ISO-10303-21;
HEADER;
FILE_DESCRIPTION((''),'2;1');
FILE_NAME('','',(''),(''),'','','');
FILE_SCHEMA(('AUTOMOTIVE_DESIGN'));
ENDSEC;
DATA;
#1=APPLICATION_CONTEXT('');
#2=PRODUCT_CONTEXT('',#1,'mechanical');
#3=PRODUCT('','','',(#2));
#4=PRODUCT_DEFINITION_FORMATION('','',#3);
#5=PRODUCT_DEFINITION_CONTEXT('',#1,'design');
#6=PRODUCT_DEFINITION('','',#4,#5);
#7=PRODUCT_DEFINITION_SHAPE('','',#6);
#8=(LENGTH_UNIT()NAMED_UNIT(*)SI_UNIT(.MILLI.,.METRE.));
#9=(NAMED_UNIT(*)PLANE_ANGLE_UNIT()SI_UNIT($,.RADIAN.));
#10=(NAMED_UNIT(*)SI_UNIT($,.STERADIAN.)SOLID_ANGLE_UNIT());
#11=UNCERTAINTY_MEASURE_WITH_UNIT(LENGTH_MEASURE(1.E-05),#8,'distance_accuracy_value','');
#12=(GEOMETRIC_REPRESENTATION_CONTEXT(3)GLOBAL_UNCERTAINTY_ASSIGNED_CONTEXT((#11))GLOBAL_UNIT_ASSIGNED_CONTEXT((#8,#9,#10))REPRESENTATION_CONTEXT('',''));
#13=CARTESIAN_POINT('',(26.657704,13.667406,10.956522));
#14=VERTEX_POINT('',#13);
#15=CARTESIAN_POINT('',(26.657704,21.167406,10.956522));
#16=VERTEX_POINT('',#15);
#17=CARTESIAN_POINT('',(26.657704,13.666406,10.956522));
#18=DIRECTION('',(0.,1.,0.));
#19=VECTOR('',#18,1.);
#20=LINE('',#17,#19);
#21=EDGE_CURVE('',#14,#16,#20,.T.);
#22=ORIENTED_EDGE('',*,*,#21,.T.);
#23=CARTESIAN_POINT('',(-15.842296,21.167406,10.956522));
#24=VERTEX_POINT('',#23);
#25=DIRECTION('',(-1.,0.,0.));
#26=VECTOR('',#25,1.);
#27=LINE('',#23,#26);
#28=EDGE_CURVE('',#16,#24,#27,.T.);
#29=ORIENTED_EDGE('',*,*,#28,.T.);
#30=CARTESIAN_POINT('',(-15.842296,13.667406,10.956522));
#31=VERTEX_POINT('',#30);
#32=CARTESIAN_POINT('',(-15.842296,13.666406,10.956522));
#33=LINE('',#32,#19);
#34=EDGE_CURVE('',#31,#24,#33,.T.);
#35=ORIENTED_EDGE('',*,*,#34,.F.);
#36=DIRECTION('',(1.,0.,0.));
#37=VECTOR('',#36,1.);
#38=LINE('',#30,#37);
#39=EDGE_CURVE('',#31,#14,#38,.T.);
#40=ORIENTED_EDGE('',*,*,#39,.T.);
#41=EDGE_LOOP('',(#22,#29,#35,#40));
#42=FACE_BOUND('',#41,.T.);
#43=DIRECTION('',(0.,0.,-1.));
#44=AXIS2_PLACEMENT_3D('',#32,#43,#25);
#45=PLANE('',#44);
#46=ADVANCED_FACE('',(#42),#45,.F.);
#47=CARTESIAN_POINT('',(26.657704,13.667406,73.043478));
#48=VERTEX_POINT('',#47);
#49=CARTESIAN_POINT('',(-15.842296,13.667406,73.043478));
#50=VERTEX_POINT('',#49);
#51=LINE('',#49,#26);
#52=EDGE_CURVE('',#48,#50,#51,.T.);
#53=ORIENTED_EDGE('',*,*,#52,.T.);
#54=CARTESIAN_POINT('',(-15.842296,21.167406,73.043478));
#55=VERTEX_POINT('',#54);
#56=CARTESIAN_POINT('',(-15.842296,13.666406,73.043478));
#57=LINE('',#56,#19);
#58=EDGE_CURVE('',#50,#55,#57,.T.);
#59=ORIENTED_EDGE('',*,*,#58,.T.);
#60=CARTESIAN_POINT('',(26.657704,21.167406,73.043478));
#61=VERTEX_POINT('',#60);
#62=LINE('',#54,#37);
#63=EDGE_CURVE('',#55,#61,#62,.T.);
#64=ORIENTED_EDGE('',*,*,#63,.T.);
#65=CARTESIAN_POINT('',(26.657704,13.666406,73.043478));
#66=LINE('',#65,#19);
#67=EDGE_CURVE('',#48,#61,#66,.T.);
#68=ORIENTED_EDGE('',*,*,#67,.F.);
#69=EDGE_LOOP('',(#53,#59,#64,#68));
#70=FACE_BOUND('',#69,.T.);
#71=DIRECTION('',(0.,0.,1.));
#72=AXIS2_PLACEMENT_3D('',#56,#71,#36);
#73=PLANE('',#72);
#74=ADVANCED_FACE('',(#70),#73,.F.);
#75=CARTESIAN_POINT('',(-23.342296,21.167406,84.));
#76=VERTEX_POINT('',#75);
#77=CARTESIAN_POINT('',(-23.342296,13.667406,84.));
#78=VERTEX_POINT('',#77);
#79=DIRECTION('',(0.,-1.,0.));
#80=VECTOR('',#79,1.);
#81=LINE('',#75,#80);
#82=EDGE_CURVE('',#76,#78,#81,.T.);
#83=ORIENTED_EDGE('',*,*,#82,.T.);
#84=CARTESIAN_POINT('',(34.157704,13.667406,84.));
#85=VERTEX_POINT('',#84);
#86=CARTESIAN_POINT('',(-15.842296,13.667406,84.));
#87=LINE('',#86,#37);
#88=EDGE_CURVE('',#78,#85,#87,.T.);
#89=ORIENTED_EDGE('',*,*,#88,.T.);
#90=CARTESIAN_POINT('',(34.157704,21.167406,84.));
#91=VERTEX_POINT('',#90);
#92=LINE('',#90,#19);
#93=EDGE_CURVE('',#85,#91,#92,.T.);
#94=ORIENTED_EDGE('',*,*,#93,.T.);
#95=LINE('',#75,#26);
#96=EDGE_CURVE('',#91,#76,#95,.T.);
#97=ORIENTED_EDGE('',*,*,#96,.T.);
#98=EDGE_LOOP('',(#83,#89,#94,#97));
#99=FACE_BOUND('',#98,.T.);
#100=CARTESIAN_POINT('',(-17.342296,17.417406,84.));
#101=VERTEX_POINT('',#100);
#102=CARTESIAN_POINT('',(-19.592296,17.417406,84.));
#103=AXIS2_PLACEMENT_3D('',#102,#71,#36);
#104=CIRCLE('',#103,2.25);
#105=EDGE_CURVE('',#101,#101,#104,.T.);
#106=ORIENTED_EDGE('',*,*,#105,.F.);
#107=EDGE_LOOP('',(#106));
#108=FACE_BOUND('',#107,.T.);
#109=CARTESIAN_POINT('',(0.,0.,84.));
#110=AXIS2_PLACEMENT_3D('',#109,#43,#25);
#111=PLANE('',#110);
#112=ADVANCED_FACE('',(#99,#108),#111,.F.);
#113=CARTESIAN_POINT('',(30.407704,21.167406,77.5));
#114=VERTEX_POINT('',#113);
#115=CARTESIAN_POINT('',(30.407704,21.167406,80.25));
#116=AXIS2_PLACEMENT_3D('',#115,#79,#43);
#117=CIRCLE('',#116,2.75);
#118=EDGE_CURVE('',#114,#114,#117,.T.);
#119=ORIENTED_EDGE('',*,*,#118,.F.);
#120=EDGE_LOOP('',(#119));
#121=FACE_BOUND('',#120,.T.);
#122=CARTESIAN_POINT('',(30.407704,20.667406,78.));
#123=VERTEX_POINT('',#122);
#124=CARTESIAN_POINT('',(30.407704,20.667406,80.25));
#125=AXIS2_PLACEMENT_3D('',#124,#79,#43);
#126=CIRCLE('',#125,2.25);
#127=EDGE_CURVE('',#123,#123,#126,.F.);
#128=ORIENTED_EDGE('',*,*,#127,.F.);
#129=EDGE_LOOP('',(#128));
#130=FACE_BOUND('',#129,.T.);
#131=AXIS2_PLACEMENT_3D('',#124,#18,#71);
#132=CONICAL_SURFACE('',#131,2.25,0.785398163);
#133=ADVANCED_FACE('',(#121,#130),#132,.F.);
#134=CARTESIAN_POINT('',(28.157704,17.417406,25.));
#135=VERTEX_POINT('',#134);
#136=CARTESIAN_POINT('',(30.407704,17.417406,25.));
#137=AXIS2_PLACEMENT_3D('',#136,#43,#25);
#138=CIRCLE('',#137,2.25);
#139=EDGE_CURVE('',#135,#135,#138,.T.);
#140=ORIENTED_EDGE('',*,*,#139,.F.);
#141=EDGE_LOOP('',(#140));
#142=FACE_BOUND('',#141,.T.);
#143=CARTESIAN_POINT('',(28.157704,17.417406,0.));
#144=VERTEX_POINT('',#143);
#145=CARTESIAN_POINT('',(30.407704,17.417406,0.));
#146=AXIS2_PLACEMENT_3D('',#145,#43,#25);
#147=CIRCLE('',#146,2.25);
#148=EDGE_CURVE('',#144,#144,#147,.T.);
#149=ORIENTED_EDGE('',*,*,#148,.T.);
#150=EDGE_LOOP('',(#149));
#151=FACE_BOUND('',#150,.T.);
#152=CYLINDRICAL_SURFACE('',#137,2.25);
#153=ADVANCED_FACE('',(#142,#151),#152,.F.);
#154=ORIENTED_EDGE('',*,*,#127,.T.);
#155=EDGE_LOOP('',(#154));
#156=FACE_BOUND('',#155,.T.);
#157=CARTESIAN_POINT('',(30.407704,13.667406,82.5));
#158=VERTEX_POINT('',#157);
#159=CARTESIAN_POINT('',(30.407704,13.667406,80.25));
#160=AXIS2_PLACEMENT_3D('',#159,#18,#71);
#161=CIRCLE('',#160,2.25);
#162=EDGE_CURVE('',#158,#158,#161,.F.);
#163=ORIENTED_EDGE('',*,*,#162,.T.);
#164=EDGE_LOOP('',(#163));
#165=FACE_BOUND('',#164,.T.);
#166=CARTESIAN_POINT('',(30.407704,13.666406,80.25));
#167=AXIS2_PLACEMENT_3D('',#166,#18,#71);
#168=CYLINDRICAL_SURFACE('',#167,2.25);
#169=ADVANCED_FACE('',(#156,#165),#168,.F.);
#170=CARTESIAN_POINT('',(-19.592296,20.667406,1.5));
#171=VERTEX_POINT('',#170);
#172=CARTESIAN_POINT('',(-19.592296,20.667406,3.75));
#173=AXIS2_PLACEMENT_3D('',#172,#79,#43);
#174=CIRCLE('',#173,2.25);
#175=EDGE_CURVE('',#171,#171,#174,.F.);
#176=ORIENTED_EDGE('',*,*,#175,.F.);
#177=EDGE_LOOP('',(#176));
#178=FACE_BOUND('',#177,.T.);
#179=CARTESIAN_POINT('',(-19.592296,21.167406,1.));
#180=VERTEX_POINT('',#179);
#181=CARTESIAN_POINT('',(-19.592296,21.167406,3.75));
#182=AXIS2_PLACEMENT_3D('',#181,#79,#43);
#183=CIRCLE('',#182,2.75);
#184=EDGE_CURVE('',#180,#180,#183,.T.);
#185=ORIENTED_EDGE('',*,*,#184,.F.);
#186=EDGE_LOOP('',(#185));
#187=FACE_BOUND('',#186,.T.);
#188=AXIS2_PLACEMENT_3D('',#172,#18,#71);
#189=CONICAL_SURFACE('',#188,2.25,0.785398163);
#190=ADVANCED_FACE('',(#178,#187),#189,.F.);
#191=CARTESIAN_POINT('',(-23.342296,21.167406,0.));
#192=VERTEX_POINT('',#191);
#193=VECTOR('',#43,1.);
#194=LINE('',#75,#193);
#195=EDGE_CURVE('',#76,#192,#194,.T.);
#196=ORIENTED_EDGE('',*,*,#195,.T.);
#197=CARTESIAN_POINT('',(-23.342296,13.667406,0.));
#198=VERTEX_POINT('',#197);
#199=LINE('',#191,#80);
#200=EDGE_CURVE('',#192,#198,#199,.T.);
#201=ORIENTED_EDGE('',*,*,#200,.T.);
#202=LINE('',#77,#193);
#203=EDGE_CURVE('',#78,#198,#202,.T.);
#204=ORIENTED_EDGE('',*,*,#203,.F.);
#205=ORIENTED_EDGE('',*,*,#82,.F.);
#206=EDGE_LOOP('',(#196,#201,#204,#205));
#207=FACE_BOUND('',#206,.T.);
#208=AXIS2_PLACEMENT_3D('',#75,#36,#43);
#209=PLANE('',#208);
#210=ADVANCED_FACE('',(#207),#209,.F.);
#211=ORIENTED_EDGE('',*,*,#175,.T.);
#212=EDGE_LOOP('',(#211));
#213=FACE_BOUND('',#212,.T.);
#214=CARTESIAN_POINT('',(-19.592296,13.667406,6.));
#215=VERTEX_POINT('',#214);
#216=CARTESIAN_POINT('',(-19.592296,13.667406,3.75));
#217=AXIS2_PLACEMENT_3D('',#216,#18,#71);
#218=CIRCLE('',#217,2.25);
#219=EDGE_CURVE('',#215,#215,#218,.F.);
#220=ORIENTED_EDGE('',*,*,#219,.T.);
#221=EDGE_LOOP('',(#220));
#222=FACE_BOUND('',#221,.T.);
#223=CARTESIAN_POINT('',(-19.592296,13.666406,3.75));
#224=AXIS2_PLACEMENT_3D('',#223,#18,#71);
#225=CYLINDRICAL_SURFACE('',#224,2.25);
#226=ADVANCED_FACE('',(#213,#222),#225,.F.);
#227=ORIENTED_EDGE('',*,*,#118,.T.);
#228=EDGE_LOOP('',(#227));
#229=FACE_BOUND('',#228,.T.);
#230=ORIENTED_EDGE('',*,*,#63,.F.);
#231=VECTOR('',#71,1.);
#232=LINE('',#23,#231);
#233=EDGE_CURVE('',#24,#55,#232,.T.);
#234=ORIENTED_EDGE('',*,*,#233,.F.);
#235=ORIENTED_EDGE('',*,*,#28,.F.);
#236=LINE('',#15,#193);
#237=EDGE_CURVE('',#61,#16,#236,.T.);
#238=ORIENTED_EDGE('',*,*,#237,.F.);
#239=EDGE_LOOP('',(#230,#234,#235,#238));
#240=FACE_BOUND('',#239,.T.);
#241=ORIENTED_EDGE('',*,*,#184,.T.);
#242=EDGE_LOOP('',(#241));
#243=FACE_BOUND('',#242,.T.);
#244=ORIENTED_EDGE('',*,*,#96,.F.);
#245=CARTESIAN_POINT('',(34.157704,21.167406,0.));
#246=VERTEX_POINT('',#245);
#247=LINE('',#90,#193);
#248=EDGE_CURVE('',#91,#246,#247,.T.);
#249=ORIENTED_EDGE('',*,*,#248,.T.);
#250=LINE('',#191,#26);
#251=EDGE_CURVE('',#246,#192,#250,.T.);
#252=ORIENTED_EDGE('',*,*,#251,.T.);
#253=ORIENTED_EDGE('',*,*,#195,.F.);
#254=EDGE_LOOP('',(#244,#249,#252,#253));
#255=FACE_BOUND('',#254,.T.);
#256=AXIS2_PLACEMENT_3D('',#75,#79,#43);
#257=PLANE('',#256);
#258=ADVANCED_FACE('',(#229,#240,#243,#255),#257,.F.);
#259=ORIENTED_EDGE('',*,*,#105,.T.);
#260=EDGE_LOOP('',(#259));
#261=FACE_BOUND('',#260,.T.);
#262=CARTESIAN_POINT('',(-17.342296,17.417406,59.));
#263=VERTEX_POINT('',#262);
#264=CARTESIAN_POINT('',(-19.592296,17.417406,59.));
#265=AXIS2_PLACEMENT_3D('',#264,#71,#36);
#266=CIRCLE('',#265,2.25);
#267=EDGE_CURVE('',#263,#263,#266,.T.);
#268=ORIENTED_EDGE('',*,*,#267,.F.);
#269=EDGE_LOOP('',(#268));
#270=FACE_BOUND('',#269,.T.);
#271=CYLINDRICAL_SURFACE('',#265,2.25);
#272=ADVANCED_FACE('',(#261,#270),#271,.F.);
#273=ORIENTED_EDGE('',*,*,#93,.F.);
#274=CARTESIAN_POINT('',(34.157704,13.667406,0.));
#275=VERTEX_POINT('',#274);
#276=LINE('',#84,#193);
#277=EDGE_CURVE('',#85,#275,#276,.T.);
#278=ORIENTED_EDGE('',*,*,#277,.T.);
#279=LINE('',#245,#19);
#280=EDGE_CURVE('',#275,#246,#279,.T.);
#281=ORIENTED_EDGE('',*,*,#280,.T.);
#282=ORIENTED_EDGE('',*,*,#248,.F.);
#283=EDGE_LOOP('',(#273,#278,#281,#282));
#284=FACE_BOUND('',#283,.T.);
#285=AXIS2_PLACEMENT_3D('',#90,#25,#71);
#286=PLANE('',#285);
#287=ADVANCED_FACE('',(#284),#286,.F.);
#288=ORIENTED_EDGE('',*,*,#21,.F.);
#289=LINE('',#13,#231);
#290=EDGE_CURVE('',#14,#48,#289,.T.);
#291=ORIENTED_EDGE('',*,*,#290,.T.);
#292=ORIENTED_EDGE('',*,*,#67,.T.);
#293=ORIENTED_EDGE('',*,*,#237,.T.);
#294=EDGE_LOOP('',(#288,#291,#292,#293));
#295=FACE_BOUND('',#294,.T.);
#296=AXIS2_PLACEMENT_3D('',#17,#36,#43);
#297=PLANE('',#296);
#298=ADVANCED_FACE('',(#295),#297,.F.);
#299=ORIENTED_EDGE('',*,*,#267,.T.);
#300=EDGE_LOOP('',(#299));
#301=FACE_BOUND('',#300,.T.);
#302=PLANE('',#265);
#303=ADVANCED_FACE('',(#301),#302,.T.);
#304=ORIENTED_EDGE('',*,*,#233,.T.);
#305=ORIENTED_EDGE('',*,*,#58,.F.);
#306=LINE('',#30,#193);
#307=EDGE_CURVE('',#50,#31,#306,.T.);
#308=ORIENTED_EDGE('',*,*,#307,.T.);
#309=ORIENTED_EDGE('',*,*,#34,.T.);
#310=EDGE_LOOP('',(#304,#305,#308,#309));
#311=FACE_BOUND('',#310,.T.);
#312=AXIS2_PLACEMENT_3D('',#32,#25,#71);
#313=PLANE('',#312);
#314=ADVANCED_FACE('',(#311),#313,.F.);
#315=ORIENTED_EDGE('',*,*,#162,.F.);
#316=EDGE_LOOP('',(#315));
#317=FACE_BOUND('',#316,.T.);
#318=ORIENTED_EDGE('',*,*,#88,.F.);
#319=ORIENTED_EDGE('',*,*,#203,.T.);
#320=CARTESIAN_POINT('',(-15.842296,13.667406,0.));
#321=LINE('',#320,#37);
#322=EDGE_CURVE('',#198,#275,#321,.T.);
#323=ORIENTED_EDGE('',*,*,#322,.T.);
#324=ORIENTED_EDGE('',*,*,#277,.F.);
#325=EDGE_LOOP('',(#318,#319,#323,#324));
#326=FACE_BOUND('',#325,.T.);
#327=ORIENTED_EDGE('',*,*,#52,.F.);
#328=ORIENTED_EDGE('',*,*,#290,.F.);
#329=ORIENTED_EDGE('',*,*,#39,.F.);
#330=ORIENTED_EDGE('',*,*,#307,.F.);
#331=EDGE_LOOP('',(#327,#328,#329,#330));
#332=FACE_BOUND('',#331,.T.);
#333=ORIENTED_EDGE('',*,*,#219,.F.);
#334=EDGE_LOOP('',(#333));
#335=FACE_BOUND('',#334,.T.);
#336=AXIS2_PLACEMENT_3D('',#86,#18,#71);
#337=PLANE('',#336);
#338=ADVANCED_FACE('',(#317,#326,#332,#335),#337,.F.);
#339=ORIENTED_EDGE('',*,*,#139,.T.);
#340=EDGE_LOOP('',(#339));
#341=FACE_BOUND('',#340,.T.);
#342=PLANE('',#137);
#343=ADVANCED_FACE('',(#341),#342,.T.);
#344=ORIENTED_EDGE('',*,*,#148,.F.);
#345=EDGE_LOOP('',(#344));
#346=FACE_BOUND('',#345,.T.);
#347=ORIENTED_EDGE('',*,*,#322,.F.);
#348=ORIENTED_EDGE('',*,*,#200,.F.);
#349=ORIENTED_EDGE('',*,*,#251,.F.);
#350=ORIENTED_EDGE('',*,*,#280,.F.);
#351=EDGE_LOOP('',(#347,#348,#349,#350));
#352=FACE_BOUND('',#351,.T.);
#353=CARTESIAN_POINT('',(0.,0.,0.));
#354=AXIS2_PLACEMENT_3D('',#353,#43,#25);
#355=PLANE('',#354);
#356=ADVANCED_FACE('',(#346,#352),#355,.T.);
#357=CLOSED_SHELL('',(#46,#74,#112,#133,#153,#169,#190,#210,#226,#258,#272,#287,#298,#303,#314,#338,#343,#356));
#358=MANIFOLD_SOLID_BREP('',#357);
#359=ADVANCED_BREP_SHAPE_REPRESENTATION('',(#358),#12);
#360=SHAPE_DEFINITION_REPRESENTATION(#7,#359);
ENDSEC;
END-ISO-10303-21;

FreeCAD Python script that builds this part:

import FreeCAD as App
import Part
import Sketcher


def edges_at(feature, points):
    """Names of the edges that pass closest to the given points."""
    edges = feature.Shape.Edges
    near = lambda p: min(range(len(edges)), key=lambda i: edges[i].distToShape(Part.Vertex(*p))[0])
    return sorted({f"Edge{near(p) + 1}" for p in points})


def add_polygon(sketch, points):
    """Adds a closed chain of lines whose ends are joined by coincident constraints."""
    first, n = sketch.GeometryCount, len(points)
    for a, b in zip(points, points[1:] + points[:1]):
        sketch.addGeometry(Part.LineSegment(App.Vector(*a, 0), App.Vector(*b, 0)), False)
    for i in range(n):
        sketch.addConstraint(Sketcher.Constraint("Coincident", first + i, 2, first + (i + 1) % n, 1))

doc = App.newDocument("Part")
body = doc.addObject("PartDesign::Body", "Body")

# Sketch on XY plane
sketch1 = body.newObject("Sketcher::SketchObject", "Sketch")
sketch1.AttachmentSupport = (doc.getObject("XY_Plane"), [""])
sketch1.MapMode = "FlatFace"
add_polygon(sketch1, [(-23, 14), (34, 14), (34, 21), (-23, 21)])  # lines 0-3
sketch1.addConstraint([
    Sketcher.Constraint("Horizontal", 0),
    Sketcher.Constraint("Vertical", 1),
    Sketcher.Constraint("Horizontal", 2),
    Sketcher.Constraint("Vertical", 3),
    Sketcher.Constraint("DistanceX", 0, 1, 0, 2, 57.5),
    Sketcher.Constraint("DistanceY", 1, 1, 1, 2, 7.5),
    Sketcher.Constraint("DistanceX", -1, 1, 0, 2, 34.157704),
    Sketcher.Constraint("DistanceY", -1, 1, 0, 2, 13.667406),
])
pad1 = body.newObject("PartDesign::Pad", "Pad")
pad1.Profile = sketch1
pad1.Length = 84

# Sketch on XY plane
sketch2 = body.newObject("Sketcher::SketchObject", "Sketch001")
sketch2.AttachmentSupport = (doc.getObject("XY_Plane"), [""])
sketch2.MapMode = "FlatFace"
sketch2.AttachmentOffset = App.Placement(App.Vector(0, 0, 84), App.Rotation())
sketch2.addGeometry(Part.Circle(App.Vector(-19.6, 17.4, 0), App.Vector(0, 0, 1), 2.2), False)
sketch2.addConstraint([
    Sketcher.Constraint("Diameter", 0, 4.5),
    Sketcher.Constraint("DistanceX", 0, 3, -1, 1, 19.592296),
    Sketcher.Constraint("DistanceY", -1, 1, 0, 3, 17.417406),
])
pocket1 = body.newObject("PartDesign::Pocket", "Pocket")
pocket1.Profile = sketch2
pocket1.Length = 25

# Sketch on XZ plane
sketch3 = body.newObject("Sketcher::SketchObject", "Sketch002")
sketch3.AttachmentSupport = (doc.getObject("XZ_Plane"), [""])
sketch3.MapMode = "FlatFace"
sketch3.AttachmentOffset = App.Placement(App.Vector(0, 0, -21.167406), App.Rotation())
sketch3.addGeometry(Part.Circle(App.Vector(30.4, 80.2, 0), App.Vector(0, 0, 1), 2.2), False)
sketch3.addConstraint([
    Sketcher.Constraint("Diameter", 0, 4.5),
    Sketcher.Constraint("DistanceY", -1, 1, 0, 3, 80.25),
    Sketcher.Constraint("DistanceX", -1, 1, 0, 3, 30.407704),
])
pocket2 = body.newObject("PartDesign::Pocket", "Pocket001")
pocket2.Profile = sketch3
pocket2.Type = "UpToFirst"
pocket2.Reversed = True

# Sketch on XZ plane
sketch4 = body.newObject("Sketcher::SketchObject", "Sketch003")
sketch4.AttachmentSupport = (doc.getObject("XZ_Plane"), [""])
sketch4.MapMode = "FlatFace"
sketch4.AttachmentOffset = App.Placement(App.Vector(0, 0, -21.167406), App.Rotation())
sketch4.addGeometry(Part.Circle(App.Vector(-19.6, 3.8, 0), App.Vector(0, 0, 1), 2.2), False)
sketch4.addConstraint([
    Sketcher.Constraint("Diameter", 0, 4.5),
    Sketcher.Constraint("DistanceY", -1, 1, 0, 3, 3.75),
    Sketcher.Constraint("DistanceX", 0, 3, -1, 1, 19.592296),
])
pocket3 = body.newObject("PartDesign::Pocket", "Pocket002")
pocket3.Profile = sketch4
pocket3.Type = "UpToFirst"
pocket3.Reversed = True

# Sketch on XZ plane
sketch5 = body.newObject("Sketcher::SketchObject", "Sketch004")
sketch5.AttachmentSupport = (doc.getObject("XZ_Plane"), [""])
sketch5.MapMode = "FlatFace"
sketch5.AttachmentOffset = App.Placement(App.Vector(0, 0, -21.167406), App.Rotation())
add_polygon(sketch5, [(-16, 11), (-16, 73), (27, 73), (27, 11)])  # lines 0-3
sketch5.addConstraint([
    Sketcher.Constraint("Vertical", 0),
    Sketcher.Constraint("Horizontal", 1),
    Sketcher.Constraint("Vertical", 2),
    Sketcher.Constraint("Horizontal", 3),
    Sketcher.Constraint("DistanceX", 1, 1, 1, 2, 42.5),
    Sketcher.Constraint("DistanceY", 0, 1, 0, 2, 62.086957),
    Sketcher.Constraint("DistanceY", -1, 1, 0, 2, 73.043478),
    Sketcher.Constraint("DistanceX", 0, 2, -1, 1, 15.842296),
])
pocket4 = body.newObject("PartDesign::Pocket", "Pocket003")
pocket4.Profile = sketch5
pocket4.Type = "UpToFirst"
pocket4.Reversed = True

# Sketch on XY plane
sketch6 = body.newObject("Sketcher::SketchObject", "Sketch005")
sketch6.AttachmentSupport = (doc.getObject("XY_Plane"), [""])
sketch6.MapMode = "FlatFace"
sketch6.addGeometry(Part.Circle(App.Vector(30.4, 17.4, 0), App.Vector(0, 0, 1), 2.2), False)
sketch6.addConstraint([
    Sketcher.Constraint("Diameter", 0, 4.5),
    Sketcher.Constraint("DistanceX", -1, 1, 0, 3, 30.407704),
    Sketcher.Constraint("DistanceY", -1, 1, 0, 3, 17.417406),
])
pocket5 = body.newObject("PartDesign::Pocket", "Pocket004")
pocket5.Profile = sketch6
pocket5.Length = 25
pocket5.Reversed = True
doc.recompute()

chamfer = body.newObject("PartDesign::Chamfer", "Chamfer")
chamfer.Base = (pocket5, edges_at(pocket5, [(28.158, 21.167, 80.25), (-21.842, 21.167, 3.75)]))
chamfer.Size = 0.5

doc.recompute()
